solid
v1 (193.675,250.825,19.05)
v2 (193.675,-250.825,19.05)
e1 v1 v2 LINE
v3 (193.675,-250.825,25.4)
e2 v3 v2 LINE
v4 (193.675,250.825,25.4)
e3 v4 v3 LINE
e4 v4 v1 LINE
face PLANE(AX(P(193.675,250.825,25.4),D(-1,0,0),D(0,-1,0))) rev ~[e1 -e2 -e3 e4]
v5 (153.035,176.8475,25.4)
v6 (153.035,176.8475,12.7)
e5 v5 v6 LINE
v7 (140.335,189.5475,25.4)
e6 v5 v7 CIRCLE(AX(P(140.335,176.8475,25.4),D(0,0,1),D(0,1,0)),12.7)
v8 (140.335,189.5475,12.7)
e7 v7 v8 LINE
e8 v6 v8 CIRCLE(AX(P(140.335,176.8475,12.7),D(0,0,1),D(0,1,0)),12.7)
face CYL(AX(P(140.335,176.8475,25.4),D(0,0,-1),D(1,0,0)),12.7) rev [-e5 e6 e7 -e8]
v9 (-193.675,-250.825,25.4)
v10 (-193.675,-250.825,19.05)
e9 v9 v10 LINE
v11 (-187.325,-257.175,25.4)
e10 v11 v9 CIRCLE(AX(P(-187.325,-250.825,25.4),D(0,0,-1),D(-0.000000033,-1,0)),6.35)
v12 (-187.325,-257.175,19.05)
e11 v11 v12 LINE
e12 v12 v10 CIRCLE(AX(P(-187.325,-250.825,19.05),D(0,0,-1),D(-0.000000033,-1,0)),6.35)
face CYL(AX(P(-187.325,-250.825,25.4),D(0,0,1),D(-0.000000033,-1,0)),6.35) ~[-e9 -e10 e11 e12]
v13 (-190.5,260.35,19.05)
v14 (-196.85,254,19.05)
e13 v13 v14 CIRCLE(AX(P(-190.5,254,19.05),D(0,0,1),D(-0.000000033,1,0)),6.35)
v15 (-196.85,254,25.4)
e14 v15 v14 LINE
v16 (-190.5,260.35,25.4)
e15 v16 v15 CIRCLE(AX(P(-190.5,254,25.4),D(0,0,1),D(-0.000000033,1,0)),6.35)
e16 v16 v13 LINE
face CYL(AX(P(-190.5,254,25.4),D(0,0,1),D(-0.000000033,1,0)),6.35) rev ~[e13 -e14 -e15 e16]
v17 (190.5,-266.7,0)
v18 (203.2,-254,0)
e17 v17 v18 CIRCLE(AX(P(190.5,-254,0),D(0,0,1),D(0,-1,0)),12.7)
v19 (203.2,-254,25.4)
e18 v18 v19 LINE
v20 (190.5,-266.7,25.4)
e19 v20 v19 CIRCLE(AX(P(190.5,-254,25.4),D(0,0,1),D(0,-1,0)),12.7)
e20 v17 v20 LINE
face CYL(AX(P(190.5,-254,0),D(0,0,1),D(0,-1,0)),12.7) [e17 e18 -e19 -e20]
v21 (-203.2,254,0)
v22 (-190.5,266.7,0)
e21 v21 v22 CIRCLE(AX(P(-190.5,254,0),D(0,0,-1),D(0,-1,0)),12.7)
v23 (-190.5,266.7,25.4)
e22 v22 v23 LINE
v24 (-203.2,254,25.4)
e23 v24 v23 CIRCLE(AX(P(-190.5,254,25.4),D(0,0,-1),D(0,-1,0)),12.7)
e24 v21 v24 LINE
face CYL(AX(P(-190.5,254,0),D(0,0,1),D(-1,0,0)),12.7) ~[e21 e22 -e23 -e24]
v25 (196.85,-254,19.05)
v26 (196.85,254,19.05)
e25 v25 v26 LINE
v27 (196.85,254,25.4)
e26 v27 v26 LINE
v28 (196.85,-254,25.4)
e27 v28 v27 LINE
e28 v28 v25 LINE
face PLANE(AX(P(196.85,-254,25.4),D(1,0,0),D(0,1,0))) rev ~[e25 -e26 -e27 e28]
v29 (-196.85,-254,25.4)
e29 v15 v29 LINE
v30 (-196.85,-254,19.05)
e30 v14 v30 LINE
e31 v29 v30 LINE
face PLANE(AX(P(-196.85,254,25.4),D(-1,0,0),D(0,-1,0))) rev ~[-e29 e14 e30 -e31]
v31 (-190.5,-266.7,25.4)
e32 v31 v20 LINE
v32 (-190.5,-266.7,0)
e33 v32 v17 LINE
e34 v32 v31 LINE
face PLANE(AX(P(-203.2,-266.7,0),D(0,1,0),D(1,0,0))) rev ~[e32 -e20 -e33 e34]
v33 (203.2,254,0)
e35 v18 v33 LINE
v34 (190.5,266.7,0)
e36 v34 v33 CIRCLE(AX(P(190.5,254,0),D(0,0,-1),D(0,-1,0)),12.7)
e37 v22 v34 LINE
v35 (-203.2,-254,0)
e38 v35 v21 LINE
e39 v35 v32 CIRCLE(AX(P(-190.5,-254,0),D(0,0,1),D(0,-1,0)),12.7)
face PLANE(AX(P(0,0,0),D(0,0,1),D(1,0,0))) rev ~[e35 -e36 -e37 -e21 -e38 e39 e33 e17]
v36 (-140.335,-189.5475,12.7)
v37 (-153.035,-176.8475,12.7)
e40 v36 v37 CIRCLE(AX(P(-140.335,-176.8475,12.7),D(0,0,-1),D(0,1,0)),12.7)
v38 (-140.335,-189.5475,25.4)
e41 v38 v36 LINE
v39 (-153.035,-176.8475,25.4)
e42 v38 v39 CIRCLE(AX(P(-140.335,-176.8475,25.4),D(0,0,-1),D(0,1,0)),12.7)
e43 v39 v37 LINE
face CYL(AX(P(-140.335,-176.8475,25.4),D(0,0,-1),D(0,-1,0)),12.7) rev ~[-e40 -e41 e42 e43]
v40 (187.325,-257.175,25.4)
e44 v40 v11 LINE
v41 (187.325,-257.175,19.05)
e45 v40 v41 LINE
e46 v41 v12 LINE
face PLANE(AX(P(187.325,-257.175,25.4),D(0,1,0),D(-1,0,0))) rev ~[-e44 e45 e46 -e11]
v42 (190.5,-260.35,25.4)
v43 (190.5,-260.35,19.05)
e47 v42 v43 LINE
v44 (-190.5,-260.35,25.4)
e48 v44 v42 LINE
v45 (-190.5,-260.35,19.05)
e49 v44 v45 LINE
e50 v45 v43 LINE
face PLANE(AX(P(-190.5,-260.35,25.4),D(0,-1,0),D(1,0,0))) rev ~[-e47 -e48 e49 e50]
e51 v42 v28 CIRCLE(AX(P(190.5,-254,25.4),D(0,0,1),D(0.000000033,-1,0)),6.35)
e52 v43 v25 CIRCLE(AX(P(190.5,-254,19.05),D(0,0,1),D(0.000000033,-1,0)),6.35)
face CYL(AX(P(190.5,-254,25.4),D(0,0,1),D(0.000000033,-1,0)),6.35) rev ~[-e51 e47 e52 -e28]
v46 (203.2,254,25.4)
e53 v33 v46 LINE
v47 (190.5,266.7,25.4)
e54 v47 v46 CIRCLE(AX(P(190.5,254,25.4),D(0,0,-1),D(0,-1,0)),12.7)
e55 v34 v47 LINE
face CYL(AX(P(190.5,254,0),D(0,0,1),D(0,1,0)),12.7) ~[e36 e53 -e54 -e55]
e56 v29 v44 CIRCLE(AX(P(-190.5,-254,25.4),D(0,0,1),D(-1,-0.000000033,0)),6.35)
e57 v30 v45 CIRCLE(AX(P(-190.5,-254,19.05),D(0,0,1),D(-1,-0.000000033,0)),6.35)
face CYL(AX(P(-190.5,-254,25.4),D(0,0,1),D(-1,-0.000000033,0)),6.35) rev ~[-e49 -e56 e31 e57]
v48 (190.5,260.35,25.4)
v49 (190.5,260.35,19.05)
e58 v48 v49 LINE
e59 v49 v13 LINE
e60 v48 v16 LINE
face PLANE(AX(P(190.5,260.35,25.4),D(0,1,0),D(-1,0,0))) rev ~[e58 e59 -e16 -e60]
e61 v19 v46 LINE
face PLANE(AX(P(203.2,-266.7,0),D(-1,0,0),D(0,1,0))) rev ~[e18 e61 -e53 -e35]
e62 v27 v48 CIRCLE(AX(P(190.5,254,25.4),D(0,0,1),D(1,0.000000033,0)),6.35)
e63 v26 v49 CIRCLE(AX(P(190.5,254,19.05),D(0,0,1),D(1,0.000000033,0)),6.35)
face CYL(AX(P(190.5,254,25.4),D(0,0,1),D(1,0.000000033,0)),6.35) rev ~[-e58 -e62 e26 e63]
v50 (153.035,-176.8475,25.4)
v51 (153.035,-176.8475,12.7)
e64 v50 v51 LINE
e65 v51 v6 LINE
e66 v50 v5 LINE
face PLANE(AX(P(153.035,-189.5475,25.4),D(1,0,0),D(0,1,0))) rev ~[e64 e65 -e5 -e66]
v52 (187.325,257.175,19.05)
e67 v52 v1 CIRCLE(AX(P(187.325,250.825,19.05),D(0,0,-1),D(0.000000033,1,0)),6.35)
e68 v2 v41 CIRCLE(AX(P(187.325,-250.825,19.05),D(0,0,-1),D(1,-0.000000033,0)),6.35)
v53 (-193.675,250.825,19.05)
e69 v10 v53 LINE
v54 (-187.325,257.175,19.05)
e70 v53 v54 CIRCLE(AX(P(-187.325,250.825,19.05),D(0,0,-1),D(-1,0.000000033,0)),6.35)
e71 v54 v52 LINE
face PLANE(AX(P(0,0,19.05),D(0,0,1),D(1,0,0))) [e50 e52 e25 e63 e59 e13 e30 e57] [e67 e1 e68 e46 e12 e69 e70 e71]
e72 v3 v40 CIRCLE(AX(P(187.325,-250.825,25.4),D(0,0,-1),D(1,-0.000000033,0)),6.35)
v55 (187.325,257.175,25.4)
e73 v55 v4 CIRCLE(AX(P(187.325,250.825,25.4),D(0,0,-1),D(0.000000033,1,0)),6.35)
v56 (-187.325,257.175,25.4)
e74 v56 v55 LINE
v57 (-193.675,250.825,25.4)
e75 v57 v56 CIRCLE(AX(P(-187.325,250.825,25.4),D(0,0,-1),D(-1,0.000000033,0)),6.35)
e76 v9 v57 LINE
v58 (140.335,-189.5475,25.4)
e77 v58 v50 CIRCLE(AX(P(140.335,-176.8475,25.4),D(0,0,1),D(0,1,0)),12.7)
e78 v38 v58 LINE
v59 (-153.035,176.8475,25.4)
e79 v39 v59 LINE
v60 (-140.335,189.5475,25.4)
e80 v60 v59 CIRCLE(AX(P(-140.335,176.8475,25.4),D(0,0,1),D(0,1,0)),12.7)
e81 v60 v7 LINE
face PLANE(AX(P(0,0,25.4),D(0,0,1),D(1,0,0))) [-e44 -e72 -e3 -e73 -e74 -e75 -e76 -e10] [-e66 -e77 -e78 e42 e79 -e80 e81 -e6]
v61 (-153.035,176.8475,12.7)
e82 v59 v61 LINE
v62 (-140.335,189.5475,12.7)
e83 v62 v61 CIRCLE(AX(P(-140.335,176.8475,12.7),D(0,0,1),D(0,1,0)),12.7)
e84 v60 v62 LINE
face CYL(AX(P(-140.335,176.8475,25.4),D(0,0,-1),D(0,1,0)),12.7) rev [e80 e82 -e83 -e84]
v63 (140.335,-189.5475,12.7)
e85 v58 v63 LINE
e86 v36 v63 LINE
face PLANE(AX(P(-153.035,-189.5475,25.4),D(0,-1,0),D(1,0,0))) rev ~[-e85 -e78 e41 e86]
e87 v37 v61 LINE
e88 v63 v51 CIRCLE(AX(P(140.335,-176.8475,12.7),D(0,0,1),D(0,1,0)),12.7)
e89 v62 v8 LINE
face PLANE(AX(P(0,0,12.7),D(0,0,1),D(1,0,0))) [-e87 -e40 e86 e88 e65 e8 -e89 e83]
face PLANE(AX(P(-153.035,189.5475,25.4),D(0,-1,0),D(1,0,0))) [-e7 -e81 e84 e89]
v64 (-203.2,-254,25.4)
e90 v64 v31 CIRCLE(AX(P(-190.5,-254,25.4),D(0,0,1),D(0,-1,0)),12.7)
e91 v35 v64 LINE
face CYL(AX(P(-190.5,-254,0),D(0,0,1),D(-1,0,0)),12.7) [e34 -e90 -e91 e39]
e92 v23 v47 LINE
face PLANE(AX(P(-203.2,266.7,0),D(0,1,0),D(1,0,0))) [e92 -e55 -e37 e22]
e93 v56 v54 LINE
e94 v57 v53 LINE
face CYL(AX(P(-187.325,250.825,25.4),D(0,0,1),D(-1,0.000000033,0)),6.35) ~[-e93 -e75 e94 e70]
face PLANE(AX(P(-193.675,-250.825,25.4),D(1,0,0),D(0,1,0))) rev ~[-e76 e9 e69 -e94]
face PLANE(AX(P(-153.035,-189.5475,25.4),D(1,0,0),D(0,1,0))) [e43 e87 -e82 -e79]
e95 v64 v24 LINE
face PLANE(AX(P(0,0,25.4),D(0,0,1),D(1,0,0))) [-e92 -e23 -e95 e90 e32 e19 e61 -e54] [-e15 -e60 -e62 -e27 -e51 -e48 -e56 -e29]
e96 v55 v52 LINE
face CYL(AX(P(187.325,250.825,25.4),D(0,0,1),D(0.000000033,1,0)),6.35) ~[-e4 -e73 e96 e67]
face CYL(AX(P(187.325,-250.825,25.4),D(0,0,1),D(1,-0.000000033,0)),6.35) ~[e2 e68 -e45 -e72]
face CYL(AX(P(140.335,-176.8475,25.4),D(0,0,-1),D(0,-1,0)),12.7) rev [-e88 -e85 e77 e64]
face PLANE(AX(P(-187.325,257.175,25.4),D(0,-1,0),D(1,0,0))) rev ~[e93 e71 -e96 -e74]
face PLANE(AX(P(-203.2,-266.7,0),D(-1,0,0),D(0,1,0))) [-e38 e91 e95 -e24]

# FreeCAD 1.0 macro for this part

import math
import FreeCAD as App
import Part
import Sketcher
Q = App.Units.Quantity


def edges_at(feature, points):
    """Names of the edges that pass closest to the given points."""
    edges = feature.Shape.Edges
    near = lambda p: min(range(len(edges)), key=lambda i: edges[i].distToShape(Part.Vertex(*p))[0])
    return sorted({f"Edge{near(p) + 1}" for p in points})

doc = App.newDocument("Part")
body = doc.addObject("PartDesign::Body", "Body")

# Sketch on XY plane
sketch1 = body.newObject("Sketcher::SketchObject", "Sketch")
sketch1.AttachmentSupport = (doc.getObject("XY_Plane"), [""])
sketch1.MapMode = "FlatFace"
sketch1.addGeometry([
    Part.LineSegment(App.Vector(-203, 267, 0), App.Vector(-203, -267, 0)),
    Part.LineSegment(App.Vector(-203, -267, 0), App.Vector(203, -267, 0)),
    Part.LineSegment(App.Vector(203, -267, 0), App.Vector(203, 267, 0)),
    Part.LineSegment(App.Vector(203, 267, 0), App.Vector(-203, 267, 0)),
], False)
sketch1.addConstraint([
    Sketcher.Constraint("Coincident", 0, 2, 1, 1),
    Sketcher.Constraint("Coincident", 1, 2, 2, 1),
    Sketcher.Constraint("Coincident", 2, 2, 3, 1),
    Sketcher.Constraint("Coincident", 3, 2, 0, 1),
    Sketcher.Constraint("Vertical", 0),
    Sketcher.Constraint("Horizontal", 1),
    Sketcher.Constraint("Vertical", 2),
    Sketcher.Constraint("Horizontal", 3),
    Sketcher.Constraint("Symmetric", 0, 2, 2, 2, -1, 1),
    Sketcher.Constraint("DistanceX", 1, 1, 1, 2, Q("16 in")),
    Sketcher.Constraint("DistanceY", 0, 2, 0, 1, Q("21 in")),
])
pad1 = body.newObject("PartDesign::Pad", "Pad")
pad1.Profile = sketch1
pad1.Length = Q("1 in")

# Sketch on XY plane
sketch2 = body.newObject("Sketcher::SketchObject", "Sketch001")
sketch2.AttachmentSupport = (doc.getObject("XY_Plane"), [""])
sketch2.MapMode = "FlatFace"
sketch2.AttachmentOffset = App.Placement(App.Vector(0, 0, 1 * 25.4), App.Rotation())
sketch2.addGeometry([
    Part.LineSegment(App.Vector(-153, 190, 0), App.Vector(-153, -190, 0)),
    Part.LineSegment(App.Vector(-153, -190, 0), App.Vector(153, -190, 0)),
    Part.LineSegment(App.Vector(153, -190, 0), App.Vector(153, 190, 0)),
    Part.LineSegment(App.Vector(153, 190, 0), App.Vector(-153, 190, 0)),
], False)
sketch2.addConstraint([
    Sketcher.Constraint("Coincident", 0, 2, 1, 1),
    Sketcher.Constraint("Coincident", 1, 2, 2, 1),
    Sketcher.Constraint("Coincident", 2, 2, 3, 1),
    Sketcher.Constraint("Coincident", 3, 2, 0, 1),
    Sketcher.Constraint("Vertical", 0),
    Sketcher.Constraint("Horizontal", 1),
    Sketcher.Constraint("Vertical", 2),
    Sketcher.Constraint("Horizontal", 3),
    Sketcher.Constraint("Symmetric", 0, 2, 2, 2, -1, 1),
    Sketcher.Constraint("DistanceX", 1, 1, 1, 2, Q("12.05 in")),
    Sketcher.Constraint("DistanceY", 0, 2, 0, 1, Q("14.925 in")),
])
pocket1 = body.newObject("PartDesign::Pocket", "Pocket")
pocket1.Profile = sketch2
pocket1.Length = Q("0.5 in")
doc.recompute()

fillet = body.newObject("PartDesign::Fillet", "Fillet")
fillet.Base = (pocket1, edges_at(pocket1, [
    (-203.2, -266.7, 12.7),
    (203.2, -266.7, 12.7),
    (203.2, 266.7, 12.7),
    (-203.2, 266.7, 12.7),
    (-153.035, 189.548, 19.05),
    (153.035, 189.548, 19.05),
    (153.035, -189.548, 19.05),
    (-153.035, -189.548, 19.05),
]))
fillet.Radius = Q("0.5 in")

# Sketch on XY plane
sketch3 = body.newObject("Sketcher::SketchObject", "Sketch002")
sketch3.AttachmentSupport = (doc.getObject("XY_Plane"), [""])
sketch3.MapMode = "FlatFace"
sketch3.AttachmentOffset = App.Placement(App.Vector(0, 0, 1 * 25.4), App.Rotation())
sketch3.addGeometry([
    Part.LineSegment(App.Vector(-197, 254, 0), App.Vector(-197, -254, 0)),  # 0
    Part.ArcOfCircle(Part.Circle(App.Vector(-190, -254, 0), App.Vector(0, 0, 1), 6), math.radians(-180), math.radians(-90)),  # 1
    Part.LineSegment(App.Vector(-190, -260, 0), App.Vector(190, -260, 0)),  # 2
    Part.ArcOfCircle(Part.Circle(App.Vector(190, -254, 0), App.Vector(0, 0, 1), 6), math.radians(-90), math.radians(0)),  # 3
    Part.LineSegment(App.Vector(197, -254, 0), App.Vector(197, 254, 0)),  # 4
    Part.ArcOfCircle(Part.Circle(App.Vector(190, 254, 0), App.Vector(0, 0, 1), 6), math.radians(0), math.radians(90)),  # 5
    Part.LineSegment(App.Vector(190, 260, 0), App.Vector(-190, 260, 0)),  # 6
    Part.ArcOfCircle(Part.Circle(App.Vector(-190, 254, 0), App.Vector(0, 0, 1), 6), math.radians(90), math.radians(180)),  # 7
    Part.LineSegment(App.Vector(187, -257, 0), App.Vector(-187, -257, 0)),  # 8
    Part.ArcOfCircle(Part.Circle(App.Vector(-187, -251, 0), App.Vector(0, 0, 1), 6), math.radians(-180), math.radians(-90)),  # 9
    Part.LineSegment(App.Vector(-194, -251, 0), App.Vector(-194, 251, 0)),  # 10
    Part.ArcOfCircle(Part.Circle(App.Vector(-187, 251, 0), App.Vector(0, 0, 1), 6), math.radians(90), math.radians(180)),  # 11
    Part.LineSegment(App.Vector(-187, 257, 0), App.Vector(187, 257, 0)),  # 12
    Part.ArcOfCircle(Part.Circle(App.Vector(187, 251, 0), App.Vector(0, 0, 1), 6), math.radians(0), math.radians(90)),  # 13
    Part.LineSegment(App.Vector(194, 251, 0), App.Vector(194, -251, 0)),  # 14
    Part.ArcOfCircle(Part.Circle(App.Vector(187, -251, 0), App.Vector(0, 0, 1), 6), math.radians(-90), math.radians(0)),  # 15
], False)
sketch3.addConstraint([
    Sketcher.Constraint("Tangent", 0, 2, 1, 1),
    Sketcher.Constraint("Tangent", 1, 2, 2, 1),
    Sketcher.Constraint("Tangent", 2, 2, 3, 1),
    Sketcher.Constraint("Tangent", 3, 2, 4, 1),
    Sketcher.Constraint("Tangent", 4, 2, 5, 1),
    Sketcher.Constraint("Tangent", 5, 2, 6, 1),
    Sketcher.Constraint("Tangent", 6, 2, 7, 1),
    Sketcher.Constraint("Tangent", 7, 2, 0, 1),
    Sketcher.Constraint("Tangent", 8, 2, 9, 2),
    Sketcher.Constraint("Tangent", 9, 1, 10, 1),
    Sketcher.Constraint("Tangent", 10, 2, 11, 2),
    Sketcher.Constraint("Tangent", 11, 1, 12, 1),
    Sketcher.Constraint("Tangent", 12, 2, 13, 2),
    Sketcher.Constraint("Tangent", 13, 1, 14, 1),
    Sketcher.Constraint("Tangent", 14, 2, 15, 2),
    Sketcher.Constraint("Tangent", 15, 1, 8, 1),
    Sketcher.Constraint("Vertical", 0),
    Sketcher.Constraint("Horizontal", 2),
    Sketcher.Constraint("Vertical", 4),
    Sketcher.Constraint("Horizontal", 6),
    Sketcher.Constraint("Horizontal", 8),
    Sketcher.Constraint("Vertical", 10),
    Sketcher.Constraint("Horizontal", 12),
    Sketcher.Constraint("Vertical", 14),
    Sketcher.Constraint("Equal", 1, 3),
    Sketcher.Constraint("Equal", 3, 5),
    Sketcher.Constraint("Equal", 5, 7),
    Sketcher.Constraint("Equal", 7, 9),
    Sketcher.Constraint("Equal", 9, 11),
    Sketcher.Constraint("Equal", 11, 13),
    Sketcher.Constraint("Equal", 13, 15),
    Sketcher.Constraint("Symmetric", 1, 3, 5, 3, -1, 1),
    Sketcher.Constraint("Symmetric", 9, 3, 13, 3, -1, 1),
    Sketcher.Constraint("DistanceX", 2, 1, 2, 2, Q("15 in")),
    Sketcher.Constraint("DistanceY", 0, 2, 0, 1, Q("20 in")),
    Sketcher.Constraint("Radius", 1, Q("0.25 in")),
    Sketcher.Constraint("DistanceX", 10, 2, 13, 3, Q("15 in")),
    Sketcher.Constraint("DistanceY", 10, 1, 10, 2, Q("19.75 in")),
])
pocket2 = body.newObject("PartDesign::Pocket", "Pocket001")
pocket2.Profile = sketch3
pocket2.Length = Q("0.25 in")

doc.recompute()
